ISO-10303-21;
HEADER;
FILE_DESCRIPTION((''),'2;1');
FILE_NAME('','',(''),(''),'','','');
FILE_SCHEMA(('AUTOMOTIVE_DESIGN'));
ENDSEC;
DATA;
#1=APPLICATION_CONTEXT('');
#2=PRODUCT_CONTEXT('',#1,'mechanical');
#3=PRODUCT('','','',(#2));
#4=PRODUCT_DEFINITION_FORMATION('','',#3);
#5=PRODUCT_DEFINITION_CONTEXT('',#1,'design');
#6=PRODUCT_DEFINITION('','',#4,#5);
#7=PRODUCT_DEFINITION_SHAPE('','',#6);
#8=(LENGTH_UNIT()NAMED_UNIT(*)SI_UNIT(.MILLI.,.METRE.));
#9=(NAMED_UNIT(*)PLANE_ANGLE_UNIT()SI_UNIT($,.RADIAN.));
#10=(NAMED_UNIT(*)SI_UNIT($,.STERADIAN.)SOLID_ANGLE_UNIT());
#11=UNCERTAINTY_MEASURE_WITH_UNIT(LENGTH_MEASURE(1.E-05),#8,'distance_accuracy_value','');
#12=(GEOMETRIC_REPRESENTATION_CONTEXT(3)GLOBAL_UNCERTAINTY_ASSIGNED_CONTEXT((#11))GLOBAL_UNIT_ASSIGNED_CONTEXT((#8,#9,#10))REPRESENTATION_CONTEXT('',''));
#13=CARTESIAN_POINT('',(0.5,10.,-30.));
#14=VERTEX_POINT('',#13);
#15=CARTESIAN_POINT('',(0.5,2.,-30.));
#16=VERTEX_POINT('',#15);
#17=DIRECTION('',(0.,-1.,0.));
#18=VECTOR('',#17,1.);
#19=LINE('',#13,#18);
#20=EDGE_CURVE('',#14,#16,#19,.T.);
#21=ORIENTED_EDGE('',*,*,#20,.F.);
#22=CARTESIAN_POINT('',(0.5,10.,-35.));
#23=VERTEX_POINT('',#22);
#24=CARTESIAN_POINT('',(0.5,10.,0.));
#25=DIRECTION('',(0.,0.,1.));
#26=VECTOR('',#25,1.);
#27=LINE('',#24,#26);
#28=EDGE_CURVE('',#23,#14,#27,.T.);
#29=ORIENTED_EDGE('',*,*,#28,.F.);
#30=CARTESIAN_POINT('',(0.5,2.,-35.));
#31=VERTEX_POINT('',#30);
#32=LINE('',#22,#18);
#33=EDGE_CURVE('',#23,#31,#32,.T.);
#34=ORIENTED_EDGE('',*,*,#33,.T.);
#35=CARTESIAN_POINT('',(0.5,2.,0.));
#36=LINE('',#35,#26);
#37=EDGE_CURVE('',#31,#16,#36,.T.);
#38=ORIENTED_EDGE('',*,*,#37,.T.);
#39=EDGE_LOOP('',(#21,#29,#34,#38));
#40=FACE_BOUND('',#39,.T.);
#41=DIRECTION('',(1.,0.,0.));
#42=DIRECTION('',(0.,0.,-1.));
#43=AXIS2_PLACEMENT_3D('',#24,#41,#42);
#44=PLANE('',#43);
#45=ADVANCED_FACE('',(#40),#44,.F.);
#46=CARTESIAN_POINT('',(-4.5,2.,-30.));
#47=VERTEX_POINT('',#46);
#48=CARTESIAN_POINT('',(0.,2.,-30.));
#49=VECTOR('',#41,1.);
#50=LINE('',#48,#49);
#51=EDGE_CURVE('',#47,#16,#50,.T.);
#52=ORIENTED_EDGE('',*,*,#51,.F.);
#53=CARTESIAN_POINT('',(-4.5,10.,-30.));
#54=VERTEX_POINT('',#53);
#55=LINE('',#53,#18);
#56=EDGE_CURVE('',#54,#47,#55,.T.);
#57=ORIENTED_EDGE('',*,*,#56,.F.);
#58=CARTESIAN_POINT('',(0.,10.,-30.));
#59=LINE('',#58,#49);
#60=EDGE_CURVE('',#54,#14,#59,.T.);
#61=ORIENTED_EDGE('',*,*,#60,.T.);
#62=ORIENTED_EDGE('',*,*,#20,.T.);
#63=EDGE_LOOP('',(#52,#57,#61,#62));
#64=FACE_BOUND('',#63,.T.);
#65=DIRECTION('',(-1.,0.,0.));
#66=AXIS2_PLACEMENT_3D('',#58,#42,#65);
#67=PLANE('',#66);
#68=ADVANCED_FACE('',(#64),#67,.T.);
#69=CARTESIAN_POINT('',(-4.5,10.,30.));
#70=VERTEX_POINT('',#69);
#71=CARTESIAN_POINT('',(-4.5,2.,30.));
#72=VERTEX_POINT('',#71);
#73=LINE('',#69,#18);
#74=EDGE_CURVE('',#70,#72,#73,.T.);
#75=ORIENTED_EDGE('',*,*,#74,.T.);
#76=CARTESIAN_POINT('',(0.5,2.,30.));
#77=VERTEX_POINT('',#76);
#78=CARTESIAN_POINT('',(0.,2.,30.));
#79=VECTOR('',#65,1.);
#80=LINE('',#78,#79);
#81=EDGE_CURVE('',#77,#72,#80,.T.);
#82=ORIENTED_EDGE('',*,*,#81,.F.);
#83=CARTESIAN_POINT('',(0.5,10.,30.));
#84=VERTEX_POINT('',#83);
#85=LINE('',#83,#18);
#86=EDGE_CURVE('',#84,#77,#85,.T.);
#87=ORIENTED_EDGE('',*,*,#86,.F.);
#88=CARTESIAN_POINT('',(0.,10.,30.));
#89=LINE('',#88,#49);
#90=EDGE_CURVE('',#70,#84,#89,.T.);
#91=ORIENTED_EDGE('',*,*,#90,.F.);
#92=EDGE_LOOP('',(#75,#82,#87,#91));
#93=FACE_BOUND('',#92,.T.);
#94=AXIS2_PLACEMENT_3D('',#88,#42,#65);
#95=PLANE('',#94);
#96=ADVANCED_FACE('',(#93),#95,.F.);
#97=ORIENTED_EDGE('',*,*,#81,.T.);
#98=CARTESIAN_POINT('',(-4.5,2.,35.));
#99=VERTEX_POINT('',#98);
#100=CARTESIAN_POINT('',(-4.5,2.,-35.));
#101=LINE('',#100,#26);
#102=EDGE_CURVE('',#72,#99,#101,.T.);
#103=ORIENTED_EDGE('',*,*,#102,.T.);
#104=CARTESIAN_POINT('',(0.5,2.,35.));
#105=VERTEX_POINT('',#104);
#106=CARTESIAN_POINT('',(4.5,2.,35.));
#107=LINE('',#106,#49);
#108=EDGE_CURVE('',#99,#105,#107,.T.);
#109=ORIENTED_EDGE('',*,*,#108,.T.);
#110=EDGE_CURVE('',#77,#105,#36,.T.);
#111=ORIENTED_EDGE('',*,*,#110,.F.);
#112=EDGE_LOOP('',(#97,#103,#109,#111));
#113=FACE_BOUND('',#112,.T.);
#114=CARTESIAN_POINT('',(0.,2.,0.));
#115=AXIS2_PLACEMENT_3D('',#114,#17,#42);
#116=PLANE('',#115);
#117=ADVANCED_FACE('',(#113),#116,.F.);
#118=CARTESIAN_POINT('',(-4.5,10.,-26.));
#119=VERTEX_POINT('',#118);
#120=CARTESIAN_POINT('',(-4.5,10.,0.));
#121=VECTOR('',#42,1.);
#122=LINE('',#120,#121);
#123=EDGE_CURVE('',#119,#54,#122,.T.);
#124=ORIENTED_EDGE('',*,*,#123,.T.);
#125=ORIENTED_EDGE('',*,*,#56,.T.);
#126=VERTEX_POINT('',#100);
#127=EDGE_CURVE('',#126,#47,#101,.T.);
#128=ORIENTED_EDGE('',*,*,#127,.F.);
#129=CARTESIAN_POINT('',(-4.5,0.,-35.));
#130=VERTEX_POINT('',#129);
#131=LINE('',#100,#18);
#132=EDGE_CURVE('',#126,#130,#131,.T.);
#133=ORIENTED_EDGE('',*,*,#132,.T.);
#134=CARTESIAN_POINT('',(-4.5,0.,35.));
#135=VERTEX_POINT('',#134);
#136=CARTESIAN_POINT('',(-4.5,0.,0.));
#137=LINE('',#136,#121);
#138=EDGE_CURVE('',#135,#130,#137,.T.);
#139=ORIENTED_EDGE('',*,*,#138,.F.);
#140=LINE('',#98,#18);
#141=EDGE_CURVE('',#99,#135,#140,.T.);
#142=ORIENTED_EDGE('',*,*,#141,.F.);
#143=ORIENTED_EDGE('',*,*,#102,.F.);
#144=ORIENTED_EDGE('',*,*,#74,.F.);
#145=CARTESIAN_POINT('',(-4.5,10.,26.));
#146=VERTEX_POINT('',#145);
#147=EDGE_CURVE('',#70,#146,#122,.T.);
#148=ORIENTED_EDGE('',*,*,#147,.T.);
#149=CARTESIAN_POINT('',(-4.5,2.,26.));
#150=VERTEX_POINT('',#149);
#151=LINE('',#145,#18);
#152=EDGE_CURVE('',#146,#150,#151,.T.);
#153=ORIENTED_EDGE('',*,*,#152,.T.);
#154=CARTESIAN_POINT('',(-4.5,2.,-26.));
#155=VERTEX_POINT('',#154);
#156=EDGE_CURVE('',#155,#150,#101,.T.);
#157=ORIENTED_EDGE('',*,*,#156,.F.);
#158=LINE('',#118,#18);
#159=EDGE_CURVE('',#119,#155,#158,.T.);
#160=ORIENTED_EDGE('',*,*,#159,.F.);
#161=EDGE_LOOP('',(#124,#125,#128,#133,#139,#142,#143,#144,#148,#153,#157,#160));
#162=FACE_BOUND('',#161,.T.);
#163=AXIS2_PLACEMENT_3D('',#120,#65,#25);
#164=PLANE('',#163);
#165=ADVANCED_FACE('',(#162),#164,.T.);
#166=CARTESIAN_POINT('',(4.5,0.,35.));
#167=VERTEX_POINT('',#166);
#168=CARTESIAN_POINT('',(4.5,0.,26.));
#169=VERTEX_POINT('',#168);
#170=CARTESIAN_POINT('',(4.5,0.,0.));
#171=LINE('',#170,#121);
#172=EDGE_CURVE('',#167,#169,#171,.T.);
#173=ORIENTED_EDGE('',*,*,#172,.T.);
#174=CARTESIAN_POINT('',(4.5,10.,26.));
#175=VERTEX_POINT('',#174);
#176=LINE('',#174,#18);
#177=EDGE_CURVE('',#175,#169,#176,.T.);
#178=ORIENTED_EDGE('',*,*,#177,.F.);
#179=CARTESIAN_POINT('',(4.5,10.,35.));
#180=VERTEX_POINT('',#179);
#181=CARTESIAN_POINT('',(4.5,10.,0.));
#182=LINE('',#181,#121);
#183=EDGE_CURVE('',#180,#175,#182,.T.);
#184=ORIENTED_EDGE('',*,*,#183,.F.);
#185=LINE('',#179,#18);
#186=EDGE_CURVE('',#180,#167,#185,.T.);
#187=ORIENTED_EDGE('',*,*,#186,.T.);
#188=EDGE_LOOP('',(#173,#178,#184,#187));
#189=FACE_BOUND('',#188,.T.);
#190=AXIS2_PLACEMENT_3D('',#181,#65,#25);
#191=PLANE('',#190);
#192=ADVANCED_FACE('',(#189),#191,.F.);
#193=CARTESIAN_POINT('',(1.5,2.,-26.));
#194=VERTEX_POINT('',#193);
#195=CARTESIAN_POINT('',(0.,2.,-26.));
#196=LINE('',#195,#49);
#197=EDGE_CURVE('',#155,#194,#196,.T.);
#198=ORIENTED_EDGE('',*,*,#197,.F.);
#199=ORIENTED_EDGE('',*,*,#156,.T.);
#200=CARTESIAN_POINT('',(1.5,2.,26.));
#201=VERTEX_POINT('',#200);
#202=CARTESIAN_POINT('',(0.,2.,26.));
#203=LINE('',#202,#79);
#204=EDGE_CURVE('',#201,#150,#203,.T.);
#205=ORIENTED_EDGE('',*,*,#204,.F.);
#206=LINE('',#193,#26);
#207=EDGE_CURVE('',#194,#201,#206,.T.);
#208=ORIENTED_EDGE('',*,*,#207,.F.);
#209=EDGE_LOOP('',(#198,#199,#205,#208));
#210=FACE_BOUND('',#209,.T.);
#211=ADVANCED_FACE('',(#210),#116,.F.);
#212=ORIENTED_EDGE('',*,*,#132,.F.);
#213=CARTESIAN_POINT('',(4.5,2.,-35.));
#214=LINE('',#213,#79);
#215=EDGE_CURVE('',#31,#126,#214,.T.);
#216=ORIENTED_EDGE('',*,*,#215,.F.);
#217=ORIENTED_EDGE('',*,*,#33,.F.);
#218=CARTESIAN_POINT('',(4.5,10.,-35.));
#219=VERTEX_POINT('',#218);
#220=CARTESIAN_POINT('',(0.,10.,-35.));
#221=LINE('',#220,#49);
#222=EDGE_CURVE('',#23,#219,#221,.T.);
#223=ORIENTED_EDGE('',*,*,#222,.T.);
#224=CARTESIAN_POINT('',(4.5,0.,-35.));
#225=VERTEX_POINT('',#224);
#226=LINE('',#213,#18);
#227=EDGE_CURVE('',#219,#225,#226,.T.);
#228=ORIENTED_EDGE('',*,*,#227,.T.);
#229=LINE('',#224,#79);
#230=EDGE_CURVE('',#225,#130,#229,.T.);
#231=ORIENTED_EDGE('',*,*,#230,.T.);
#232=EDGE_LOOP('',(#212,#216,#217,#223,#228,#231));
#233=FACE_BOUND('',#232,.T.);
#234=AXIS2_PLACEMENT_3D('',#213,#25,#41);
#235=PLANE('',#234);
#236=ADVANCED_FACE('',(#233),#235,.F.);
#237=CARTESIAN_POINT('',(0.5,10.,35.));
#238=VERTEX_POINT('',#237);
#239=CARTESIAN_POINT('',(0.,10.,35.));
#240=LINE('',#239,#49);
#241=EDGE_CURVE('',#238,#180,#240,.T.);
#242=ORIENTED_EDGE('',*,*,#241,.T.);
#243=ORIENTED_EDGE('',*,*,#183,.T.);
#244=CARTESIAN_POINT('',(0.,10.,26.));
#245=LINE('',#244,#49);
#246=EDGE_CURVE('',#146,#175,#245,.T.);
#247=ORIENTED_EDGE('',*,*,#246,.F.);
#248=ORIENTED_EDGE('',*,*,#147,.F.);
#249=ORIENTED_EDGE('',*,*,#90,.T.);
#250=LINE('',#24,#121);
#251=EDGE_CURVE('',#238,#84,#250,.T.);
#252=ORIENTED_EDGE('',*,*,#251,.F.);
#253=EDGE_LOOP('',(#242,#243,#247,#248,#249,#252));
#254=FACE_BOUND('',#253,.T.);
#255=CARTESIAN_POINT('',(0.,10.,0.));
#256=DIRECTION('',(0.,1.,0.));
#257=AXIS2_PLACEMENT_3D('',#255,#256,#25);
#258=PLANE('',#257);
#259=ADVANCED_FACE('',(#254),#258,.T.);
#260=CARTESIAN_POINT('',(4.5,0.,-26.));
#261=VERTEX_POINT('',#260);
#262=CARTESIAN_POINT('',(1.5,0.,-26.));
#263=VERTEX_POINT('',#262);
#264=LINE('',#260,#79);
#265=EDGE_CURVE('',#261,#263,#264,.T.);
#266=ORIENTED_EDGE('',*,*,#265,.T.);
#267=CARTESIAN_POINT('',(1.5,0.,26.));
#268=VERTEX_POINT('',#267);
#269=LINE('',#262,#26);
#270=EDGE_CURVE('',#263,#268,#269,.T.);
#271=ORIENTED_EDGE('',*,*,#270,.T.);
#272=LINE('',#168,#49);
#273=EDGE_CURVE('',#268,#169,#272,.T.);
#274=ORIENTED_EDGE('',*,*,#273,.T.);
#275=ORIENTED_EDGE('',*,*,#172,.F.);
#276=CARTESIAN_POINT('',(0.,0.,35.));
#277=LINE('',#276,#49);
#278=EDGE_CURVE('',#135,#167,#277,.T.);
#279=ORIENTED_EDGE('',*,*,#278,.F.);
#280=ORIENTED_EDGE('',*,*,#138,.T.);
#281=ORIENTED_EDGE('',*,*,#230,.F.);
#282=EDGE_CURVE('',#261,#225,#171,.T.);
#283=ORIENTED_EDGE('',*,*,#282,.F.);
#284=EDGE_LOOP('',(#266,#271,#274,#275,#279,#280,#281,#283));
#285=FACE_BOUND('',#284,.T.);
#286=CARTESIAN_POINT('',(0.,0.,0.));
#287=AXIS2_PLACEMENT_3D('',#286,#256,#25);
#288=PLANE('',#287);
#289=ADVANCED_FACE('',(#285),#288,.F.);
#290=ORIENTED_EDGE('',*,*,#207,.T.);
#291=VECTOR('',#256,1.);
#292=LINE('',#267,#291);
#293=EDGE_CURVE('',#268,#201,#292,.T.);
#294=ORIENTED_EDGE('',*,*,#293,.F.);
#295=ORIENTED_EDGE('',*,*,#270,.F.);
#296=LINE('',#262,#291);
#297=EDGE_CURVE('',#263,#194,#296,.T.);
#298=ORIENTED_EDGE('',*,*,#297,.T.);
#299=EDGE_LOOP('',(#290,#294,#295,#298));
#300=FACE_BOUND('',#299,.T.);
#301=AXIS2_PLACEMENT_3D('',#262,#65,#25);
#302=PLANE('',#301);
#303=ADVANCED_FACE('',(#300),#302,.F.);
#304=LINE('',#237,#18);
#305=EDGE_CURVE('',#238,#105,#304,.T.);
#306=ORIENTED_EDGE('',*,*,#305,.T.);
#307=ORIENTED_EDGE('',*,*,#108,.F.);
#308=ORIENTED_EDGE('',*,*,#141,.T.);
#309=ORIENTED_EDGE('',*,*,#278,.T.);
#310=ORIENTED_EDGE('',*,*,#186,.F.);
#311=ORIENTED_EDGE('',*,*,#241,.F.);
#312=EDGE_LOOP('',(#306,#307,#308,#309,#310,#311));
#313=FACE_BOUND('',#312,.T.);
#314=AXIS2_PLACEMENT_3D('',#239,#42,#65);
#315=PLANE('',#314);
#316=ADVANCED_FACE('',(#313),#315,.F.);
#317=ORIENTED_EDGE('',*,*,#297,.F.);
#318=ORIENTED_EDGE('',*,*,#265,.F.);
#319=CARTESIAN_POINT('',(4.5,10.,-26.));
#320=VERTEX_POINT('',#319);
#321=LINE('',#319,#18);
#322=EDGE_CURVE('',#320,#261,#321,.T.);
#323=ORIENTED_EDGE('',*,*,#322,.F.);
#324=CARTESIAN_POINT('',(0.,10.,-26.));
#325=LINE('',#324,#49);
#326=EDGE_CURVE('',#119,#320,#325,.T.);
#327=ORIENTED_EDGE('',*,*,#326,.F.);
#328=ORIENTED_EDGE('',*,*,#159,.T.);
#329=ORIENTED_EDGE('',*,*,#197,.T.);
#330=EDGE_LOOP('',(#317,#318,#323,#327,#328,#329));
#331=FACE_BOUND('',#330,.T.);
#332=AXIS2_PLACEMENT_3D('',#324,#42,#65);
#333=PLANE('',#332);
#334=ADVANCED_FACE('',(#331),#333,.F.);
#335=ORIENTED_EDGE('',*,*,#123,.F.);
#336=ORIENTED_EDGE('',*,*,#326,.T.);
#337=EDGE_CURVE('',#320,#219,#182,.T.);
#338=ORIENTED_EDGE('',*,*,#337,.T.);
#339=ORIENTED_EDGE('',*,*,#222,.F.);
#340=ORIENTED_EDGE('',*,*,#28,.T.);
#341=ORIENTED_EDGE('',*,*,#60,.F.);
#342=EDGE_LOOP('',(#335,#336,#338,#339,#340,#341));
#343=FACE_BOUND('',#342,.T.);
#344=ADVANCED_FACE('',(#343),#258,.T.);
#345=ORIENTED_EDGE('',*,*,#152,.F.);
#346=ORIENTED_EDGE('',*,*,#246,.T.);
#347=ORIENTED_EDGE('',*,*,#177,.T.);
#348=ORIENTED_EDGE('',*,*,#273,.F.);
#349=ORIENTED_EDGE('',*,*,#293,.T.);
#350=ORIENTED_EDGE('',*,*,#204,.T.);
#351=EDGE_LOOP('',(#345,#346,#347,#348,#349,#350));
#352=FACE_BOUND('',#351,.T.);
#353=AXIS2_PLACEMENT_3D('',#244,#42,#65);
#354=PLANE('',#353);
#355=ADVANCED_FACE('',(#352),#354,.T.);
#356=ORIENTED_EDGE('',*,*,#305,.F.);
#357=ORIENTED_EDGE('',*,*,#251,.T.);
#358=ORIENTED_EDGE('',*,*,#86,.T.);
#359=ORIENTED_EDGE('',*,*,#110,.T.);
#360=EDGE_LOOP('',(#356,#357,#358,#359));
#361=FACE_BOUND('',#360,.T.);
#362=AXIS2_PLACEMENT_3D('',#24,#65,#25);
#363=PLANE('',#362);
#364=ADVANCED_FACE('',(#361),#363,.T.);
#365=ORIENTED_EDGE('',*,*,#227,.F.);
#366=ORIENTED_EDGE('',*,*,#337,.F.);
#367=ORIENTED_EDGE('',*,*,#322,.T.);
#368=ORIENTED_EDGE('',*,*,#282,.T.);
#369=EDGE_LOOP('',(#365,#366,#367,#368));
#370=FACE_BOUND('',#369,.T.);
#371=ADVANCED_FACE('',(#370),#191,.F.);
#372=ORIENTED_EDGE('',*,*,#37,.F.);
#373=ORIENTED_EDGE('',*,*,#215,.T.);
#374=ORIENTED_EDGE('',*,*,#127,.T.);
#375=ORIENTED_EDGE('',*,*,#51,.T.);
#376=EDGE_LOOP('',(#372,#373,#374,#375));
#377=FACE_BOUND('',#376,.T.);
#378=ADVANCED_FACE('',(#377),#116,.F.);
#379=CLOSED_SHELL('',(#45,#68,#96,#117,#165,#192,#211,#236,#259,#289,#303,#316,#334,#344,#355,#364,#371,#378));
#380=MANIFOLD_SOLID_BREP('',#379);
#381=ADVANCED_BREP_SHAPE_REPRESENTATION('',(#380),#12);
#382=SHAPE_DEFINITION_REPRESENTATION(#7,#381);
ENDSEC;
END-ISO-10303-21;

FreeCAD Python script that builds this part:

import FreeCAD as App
import Part
import Sketcher

V = App.Vector
Q = App.Units.Quantity

doc = App.newDocument("Part")
body = doc.addObject("PartDesign::Body", "Body")

# Sketch on XZ plane
sketch1 = doc.addObject("Sketcher::SketchObject", "Sketch")
body.addObject(sketch1)
sketch1.AttachmentSupport = (doc.XZ_Plane, [""])
sketch1.MapMode = "FlatFace"
sketch1.addGeometry([
    Part.LineSegment(V(0.5, 30, 0), V(0.5, 35, 0)),  # 0
    Part.LineSegment(V(0.5, 35, 0), V(4.5, 35, 0)),  # 1
    Part.LineSegment(V(4.5, 35, 0), V(4.5, 26, 0)),  # 2
    Part.LineSegment(V(4.5, 26, 0), V(-4.5, 26, 0)),  # 3
    Part.LineSegment(V(-4.5, 26, 0), V(-4.5, 30, 0)),  # 4
    Part.LineSegment(V(-4.5, 30, 0), V(0.5, 30, 0)),  # 5
], False)
sketch1.addConstraint([
    Sketcher.Constraint("Coincident", 0, 2, 1, 1),
    Sketcher.Constraint("Coincident", 1, 2, 2, 1),
    Sketcher.Constraint("Coincident", 2, 2, 3, 1),
    Sketcher.Constraint("Coincident", 3, 2, 4, 1),
    Sketcher.Constraint("Coincident", 4, 2, 5, 1),
    Sketcher.Constraint("Coincident", 5, 2, 0, 1),
    Sketcher.Constraint("Vertical", 0),
    Sketcher.Constraint("Horizontal", 1),
    Sketcher.Constraint("Vertical", 2),
    Sketcher.Constraint("Horizontal", 3),
    Sketcher.Constraint("Vertical", 4),
    Sketcher.Constraint("Horizontal", 5),
    Sketcher.Constraint("Equal", 5, 0),
    Sketcher.Constraint("Equal", 3, 2),
    Sketcher.Constraint("DistanceX", 1, 1, 1, 2, Q("4 mm")),
    Sketcher.Constraint("DistanceX", 3, 2, 3, 1, Q("9 mm")),
    Sketcher.Constraint("DistanceY", -1, 1, 0, 2, Q("35 mm")),
    Sketcher.Constraint("DistanceX", -1, 1, 0, 2, Q("0.5 mm")),
])
pad1 = doc.addObject("PartDesign::Pad", "Pad")
body.addObject(pad1)
pad1.Profile = sketch1
pad1.Length = 10
pad1.Reversed = True
body2 = doc.addObject("PartDesign::Body", "Body001")

# Sketch on XZ plane
sketch2 = doc.addObject("Sketcher::SketchObject", "Sketch001")
body2.addObject(sketch2)
sketch2.AttachmentSupport = (doc.getObject("XZ_Plane001"), [""])
sketch2.MapMode = "FlatFace"
sketch2.addGeometry([
    Part.LineSegment(V(-4.5, -30, 0), V(-4.5, -26, 0)),  # 0
    Part.LineSegment(V(-4.5, -26, 0), V(4.5, -26, 0)),  # 1
    Part.LineSegment(V(4.5, -26, 0), V(4.5, -35, 0)),  # 2
    Part.LineSegment(V(4.5, -35, 0), V(0.5, -35, 0)),  # 3
    Part.LineSegment(V(0.5, -35, 0), V(0.5, -30, 0)),  # 4
    Part.LineSegment(V(0.5, -30, 0), V(-4.5, -30, 0)),  # 5
], False)
sketch2.addConstraint([
    Sketcher.Constraint("Coincident", 0, 2, 1, 1),
    Sketcher.Constraint("Coincident", 1, 2, 2, 1),
    Sketcher.Constraint("Coincident", 2, 2, 3, 1),
    Sketcher.Constraint("Coincident", 3, 2, 4, 1),
    Sketcher.Constraint("Coincident", 4, 2, 5, 1),
    Sketcher.Constraint("Coincident", 5, 2, 0, 1),
    Sketcher.Constraint("Vertical", 0),
    Sketcher.Constraint("Horizontal", 1),
    Sketcher.Constraint("Vertical", 2),
    Sketcher.Constraint("Horizontal", 3),
    Sketcher.Constraint("Vertical", 4),
    Sketcher.Constraint("Horizontal", 5),
    Sketcher.Constraint("Equal", 3, 0),
    Sketcher.Constraint("Equal", 1, 2),
    Sketcher.Constraint("DistanceX", 1, 1, 1, 2, Q("9 mm")),
    Sketcher.Constraint("DistanceX", 3, 2, 3, 1, Q("4 mm")),
    Sketcher.Constraint("DistanceY", 0, 2, -1, 1, Q("26 mm")),
    Sketcher.Constraint("DistanceX", 0, 2, -1, 1, Q("4.5 mm")),
])
pad2 = doc.addObject("PartDesign::Pad", "Pad001")
body2.addObject(pad2)
pad2.Profile = sketch2
pad2.Length = 10
pad2.Reversed = True
body.AllowCompound = True
doc.recompute()

boolean = doc.addObject("PartDesign::Boolean", "Boolean")
body.addObject(boolean)
boolean.Type = "Fuse"
boolean.addObjects([body2])

# Sketch on XZ plane
sketch3 = doc.addObject("Sketcher::SketchObject", "Sketch002")
body.addObject(sketch3)
sketch3.AttachmentSupport = (doc.XZ_Plane, [""])
sketch3.MapMode = "FlatFace"
sketch3.addGeometry([
    Part.LineSegment(V(-4, -35, 0), V(-4, 35, 0)),
    Part.LineSegment(V(-4, 35, 0), V(4, 35, 0)),
    Part.LineSegment(V(4, 35, 0), V(4, -35, 0)),
    Part.LineSegment(V(4, -35, 0), V(-4, -35, 0)),
], False)
sketch3.addConstraint([
    Sketcher.Constraint("Coincident", 0, 2, 1, 1),
    Sketcher.Constraint("Coincident", 1, 2, 2, 1),
    Sketcher.Constraint("Coincident", 2, 2, 3, 1),
    Sketcher.Constraint("Coincident", 3, 2, 0, 1),
    Sketcher.Constraint("Vertical", 0),
    Sketcher.Constraint("Horizontal", 1),
    Sketcher.Constraint("Vertical", 2),
    Sketcher.Constraint("Horizontal", 3),
    Sketcher.Constraint("Symmetric", 0, 2, 2, 2, -1, 1),
    Sketcher.Constraint("DistanceX", 1, 1, 1, 2, Q("9 mm")),
    Sketcher.Constraint("DistanceY", 0, 1, 0, 2, Q("70 mm")),
])
pad3 = doc.addObject("PartDesign::Pad", "Pad002")
body.addObject(pad3)
pad3.Profile = sketch3
pad3.Length = 2
pad3.Reversed = True

# Sketch on XZ plane
sketch4 = doc.addObject("Sketcher::SketchObject", "Sketch003")
body.addObject(sketch4)
sketch4.AttachmentSupport = (doc.XZ_Plane, [""])
sketch4.MapMode = "FlatFace"
sketch4.AttachmentOffset = App.Placement(V(0, 0, -2), App.Rotation())
sketch4.addGeometry([
    Part.LineSegment(V(1.5, -26, 0), V(1.5, 26, 0)),
    Part.LineSegment(V(1.5, 26, 0), V(4.5, 26, 0)),
    Part.LineSegment(V(4.5, 26, 0), V(4.5, -26, 0)),
    Part.LineSegment(V(4.5, -26, 0), V(1.5, -26, 0)),
], False)
sketch4.addConstraint([
    Sketcher.Constraint("Coincident", 0, 2, 1, 1),
    Sketcher.Constraint("Coincident", 1, 2, 2, 1),
    Sketcher.Constraint("Coincident", 2, 2, 3, 1),
    Sketcher.Constraint("Coincident", 3, 2, 0, 1),
    Sketcher.Constraint("Vertical", 0),
    Sketcher.Constraint("Horizontal", 1),
    Sketcher.Constraint("Vertical", 2),
    Sketcher.Constraint("Horizontal", 3),
    Sketcher.Constraint("DistanceX", 1, 1, 1, 2, Q("3 mm")),
    Sketcher.Constraint("DistanceY", 0, 1, 0, 2, Q("52 mm")),
    Sketcher.Constraint("DistanceY", -1, 1, 0, 2, Q("26 mm")),
    Sketcher.Constraint("DistanceX", -1, 1, 0, 2, Q("1.5 mm")),
])
pocket1 = doc.addObject("PartDesign::Pocket", "Pocket")
body.addObject(pocket1)
pocket1.Profile = sketch4
pocket1.Type = "ThroughAll"
pocket1.Reversed = True

doc.recompute()
